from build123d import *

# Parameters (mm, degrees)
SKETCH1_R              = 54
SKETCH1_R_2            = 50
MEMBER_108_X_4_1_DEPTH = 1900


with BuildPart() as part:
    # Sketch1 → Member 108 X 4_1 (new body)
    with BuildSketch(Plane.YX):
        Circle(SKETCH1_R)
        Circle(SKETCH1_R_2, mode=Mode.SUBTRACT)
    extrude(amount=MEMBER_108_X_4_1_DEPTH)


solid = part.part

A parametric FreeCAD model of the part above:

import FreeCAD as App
import Part
import Sketcher
from FreeCAD import Vector

doc = App.newDocument("Part")
body = doc.addObject("PartDesign::Body", "Body")

# Sketch on XY plane
sketch1 = doc.addObject("Sketcher::SketchObject", "Sketch")
body.addObject(sketch1)
sketch1.AttachmentSupport = (doc.XY_Plane, [""])
sketch1.MapMode = "FlatFace"
sketch1.addGeometry([
    Part.Circle(Vector(0, 0, 0), Vector(0, 0, 1), 54),
    Part.Circle(Vector(0, 0, 0), Vector(0, 0, 1), 50),
], False)
sketch1.addConstraint([
    Sketcher.Constraint("Coincident", 0, 3, -1, 1),
    Sketcher.Constraint("Coincident", 1, 3, -1, 1),
    Sketcher.Constraint("Diameter", 0, 108.0),
    Sketcher.Constraint("Diameter", 1, 100.0),
])
pad1 = doc.addObject("PartDesign::Pad", "Pad")
body.addObject(pad1)
pad1.Profile = sketch1
pad1.Length = 1900
pad1.Reversed = True

doc.recompute()
